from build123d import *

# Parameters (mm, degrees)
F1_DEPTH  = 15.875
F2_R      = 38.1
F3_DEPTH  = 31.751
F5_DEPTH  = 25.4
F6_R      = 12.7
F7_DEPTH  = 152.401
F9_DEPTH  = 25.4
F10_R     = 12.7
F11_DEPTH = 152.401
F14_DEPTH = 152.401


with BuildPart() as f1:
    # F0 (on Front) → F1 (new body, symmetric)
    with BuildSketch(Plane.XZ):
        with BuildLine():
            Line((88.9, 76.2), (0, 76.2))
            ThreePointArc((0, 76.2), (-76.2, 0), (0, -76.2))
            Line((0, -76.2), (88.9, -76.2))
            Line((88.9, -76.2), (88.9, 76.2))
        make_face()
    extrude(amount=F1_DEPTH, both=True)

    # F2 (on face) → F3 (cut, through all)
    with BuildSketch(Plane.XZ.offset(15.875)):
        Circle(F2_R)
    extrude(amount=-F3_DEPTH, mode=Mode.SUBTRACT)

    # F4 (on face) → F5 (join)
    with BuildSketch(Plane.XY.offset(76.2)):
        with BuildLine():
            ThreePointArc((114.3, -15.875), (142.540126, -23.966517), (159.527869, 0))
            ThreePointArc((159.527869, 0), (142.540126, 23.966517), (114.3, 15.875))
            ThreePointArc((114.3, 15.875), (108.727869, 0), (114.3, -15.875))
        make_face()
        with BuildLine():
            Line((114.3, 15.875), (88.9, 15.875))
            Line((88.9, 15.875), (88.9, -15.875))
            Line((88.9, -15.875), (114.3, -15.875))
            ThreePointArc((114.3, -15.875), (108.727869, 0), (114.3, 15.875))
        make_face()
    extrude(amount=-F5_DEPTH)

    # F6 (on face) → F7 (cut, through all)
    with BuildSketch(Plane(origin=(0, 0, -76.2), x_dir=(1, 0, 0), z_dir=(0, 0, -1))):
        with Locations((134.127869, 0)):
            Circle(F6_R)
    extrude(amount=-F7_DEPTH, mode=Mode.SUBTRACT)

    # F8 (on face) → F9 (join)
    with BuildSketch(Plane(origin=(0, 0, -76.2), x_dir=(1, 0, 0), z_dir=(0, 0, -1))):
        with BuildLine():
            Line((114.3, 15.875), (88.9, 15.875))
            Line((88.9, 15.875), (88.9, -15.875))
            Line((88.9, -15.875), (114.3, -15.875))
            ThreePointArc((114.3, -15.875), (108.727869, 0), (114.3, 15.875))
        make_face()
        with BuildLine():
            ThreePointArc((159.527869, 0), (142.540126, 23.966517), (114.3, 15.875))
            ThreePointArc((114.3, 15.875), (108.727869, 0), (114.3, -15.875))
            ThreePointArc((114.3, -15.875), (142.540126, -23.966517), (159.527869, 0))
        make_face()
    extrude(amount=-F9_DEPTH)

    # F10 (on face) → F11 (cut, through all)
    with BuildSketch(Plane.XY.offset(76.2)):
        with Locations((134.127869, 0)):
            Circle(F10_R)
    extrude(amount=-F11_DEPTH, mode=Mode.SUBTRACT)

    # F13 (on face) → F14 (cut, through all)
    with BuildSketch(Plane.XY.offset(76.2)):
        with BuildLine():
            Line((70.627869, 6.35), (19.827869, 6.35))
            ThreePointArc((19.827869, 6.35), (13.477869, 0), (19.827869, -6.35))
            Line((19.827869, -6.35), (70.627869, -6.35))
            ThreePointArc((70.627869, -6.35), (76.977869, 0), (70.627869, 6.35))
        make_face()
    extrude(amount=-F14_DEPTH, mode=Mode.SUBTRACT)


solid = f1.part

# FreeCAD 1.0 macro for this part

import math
import FreeCAD as App
import Part
import Sketcher

V = App.Vector
Q = App.Units.Quantity

doc = App.newDocument("Part")
body = doc.addObject("PartDesign::Body", "Body")

# Sketch on XZ plane
sketch1 = body.newObject("Sketcher::SketchObject", "Sketch")
sketch1.AttachmentSupport = (doc.getObject("XZ_Plane"), [""])
sketch1.MapMode = "FlatFace"
sketch1.addGeometry([
    Part.LineSegment(V(89, 76, 0), V(0, 76, 0)),
    Part.ArcOfCircle(Part.Circle(V(0, 0, 0), V(0, 0, 1), 76), math.radians(90), math.radians(270)),
    Part.LineSegment(V(0, -76, 0), V(89, -76, 0)),
    Part.LineSegment(V(89, -76, 0), V(89, 76, 0)),
], False)
sketch1.addConstraint([
    Sketcher.Constraint("Tangent", 0, 2, 1, 1),
    Sketcher.Constraint("Tangent", 1, 2, 2, 1),
    Sketcher.Constraint("Coincident", 2, 2, 3, 1),
    Sketcher.Constraint("Coincident", 3, 2, 0, 1),
    Sketcher.Constraint("Horizontal", 0),
    Sketcher.Constraint("Horizontal", 2),
    Sketcher.Constraint("Vertical", 3),
    Sketcher.Constraint("Coincident", 1, 3, -1, 1),
    Sketcher.Constraint("Radius", 1, Q("3 in")),
    Sketcher.Constraint("DistanceX", 0, 2, 0, 1, Q("3.5 in")),
])
pad1 = body.newObject("PartDesign::Pad", "Pad")
pad1.Profile = sketch1
pad1.Length = Q("1.25 in")
pad1.Midplane = True

# Sketch on XZ plane
sketch2 = body.newObject("Sketcher::SketchObject", "Sketch001")
sketch2.AttachmentSupport = (doc.getObject("XZ_Plane"), [""])
sketch2.MapMode = "FlatFace"
sketch2.AttachmentOffset = App.Placement(V(0, 0, 0.625 * 25.4), App.Rotation())
sketch2.addGeometry(Part.Circle(V(0, 0, 0), V(0, 0, 1), 38), False)
sketch2.addConstraint([
    Sketcher.Constraint("Coincident", 0, 3, -1, 1),
    Sketcher.Constraint("Diameter", 0, Q("3 in")),
])
pocket1 = body.newObject("PartDesign::Pocket", "Pocket")
pocket1.Profile = sketch2
pocket1.Type = "ThroughAll"

# Sketch on XY plane
sketch3 = body.newObject("Sketcher::SketchObject", "Sketch002")
sketch3.AttachmentSupport = (doc.getObject("XY_Plane"), [""])
sketch3.MapMode = "FlatFace"
sketch3.AttachmentOffset = App.Placement(V(0, 0, 3 * 25.4), App.Rotation())
sketch3.addGeometry([
    Part.ArcOfCircle(Part.Circle(V(134, 0, 0), V(0, 0, 1), 25), math.radians(-141), math.radians(0)),  # 0
    Part.ArcOfCircle(Part.Circle(V(134, 0, 0), V(0, 0, 1), 25), math.radians(0), math.radians(141)),  # 1
    Part.LineSegment(V(114, 16, 0), V(89, 16, 0)),  # 2
    Part.LineSegment(V(89, 16, 0), V(89, -16, 0)),  # 3
    Part.LineSegment(V(89, -16, 0), V(114, -16, 0)),  # 4
], False)
sketch3.addConstraint([
    Sketcher.Constraint("Tangent", 0, 2, 1, 1),
    Sketcher.Constraint("Coincident", 1, 2, 2, 1),
    Sketcher.Constraint("Coincident", 2, 2, 3, 1),
    Sketcher.Constraint("Coincident", 3, 2, 4, 1),
    Sketcher.Constraint("Coincident", 4, 2, 0, 1),
    Sketcher.Constraint("Horizontal", 2),
    Sketcher.Constraint("Vertical", 3),
    Sketcher.Constraint("Horizontal", 4),
    Sketcher.Constraint("Equal", 0, 1),
    Sketcher.Constraint("Symmetric", 1, 2, 4, 2, -1),
    Sketcher.Constraint("PointOnObject", 0, 2, -1),
    Sketcher.Constraint("Radius", 0, Q("1 in")),
    Sketcher.Constraint("DistanceX", 2, 2, 2, 1, Q("1 in")),
    Sketcher.Constraint("DistanceY", 3, 2, 3, 1, Q("1.25 in")),
    Sketcher.Constraint("DistanceX", -1, 1, 1, 2, Q("4.5 in")),
])
pad2 = body.newObject("PartDesign::Pad", "Pad001")
pad2.Profile = sketch3
pad2.Length = Q("1 in")
pad2.Reversed = True

# Sketch on XY plane
sketch4 = body.newObject("Sketcher::SketchObject", "Sketch003")
sketch4.AttachmentSupport = (doc.getObject("XY_Plane"), [""])
sketch4.MapMode = "FlatFace"
sketch4.AttachmentOffset = App.Placement(V(0, 0, -3 * 25.4), App.Rotation())
sketch4.addGeometry(Part.Circle(V(134, 0, 0), V(0, 0, 1), 13), False)
sketch4.addConstraint([
    Sketcher.Constraint("PointOnObject", 0, 3, -1),
    Sketcher.Constraint("Diameter", 0, Q("1 in")),
    Sketcher.Constraint("DistanceX", -1, 1, 0, 3, Q("134.127869 mm")),
])
pocket2 = body.newObject("PartDesign::Pocket", "Pocket001")
pocket2.Profile = sketch4
pocket2.Type = "ThroughAll"
pocket2.Reversed = True

# Sketch on XY plane
sketch5 = body.newObject("Sketcher::SketchObject", "Sketch004")
sketch5.AttachmentSupport = (doc.getObject("XY_Plane"), [""])
sketch5.MapMode = "FlatFace"
sketch5.AttachmentOffset = App.Placement(V(0, 0, -3 * 25.4), App.Rotation())
sketch5.addGeometry([
    Part.LineSegment(V(114, -16, 0), V(89, -16, 0)),  # 0
    Part.LineSegment(V(89, -16, 0), V(89, 16, 0)),  # 1
    Part.LineSegment(V(89, 16, 0), V(114, 16, 0)),  # 2
    Part.ArcOfCircle(Part.Circle(V(134, 0, 0), V(0, 0, 1), 25), math.radians(0), math.radians(141)),  # 3
    Part.ArcOfCircle(Part.Circle(V(134, 0, 0), V(0, 0, 1), 25), math.radians(-141), math.radians(0)),  # 4
], False)
sketch5.addConstraint([
    Sketcher.Constraint("Coincident", 0, 2, 1, 1),
    Sketcher.Constraint("Coincident", 1, 2, 2, 1),
    Sketcher.Constraint("Coincident", 2, 2, 3, 2),
    Sketcher.Constraint("Tangent", 3, 1, 4, 2),
    Sketcher.Constraint("Coincident", 4, 1, 0, 1),
    Sketcher.Constraint("Horizontal", 0),
    Sketcher.Constraint("Vertical", 1),
    Sketcher.Constraint("Horizontal", 2),
    Sketcher.Constraint("Equal", 3, 4),
    Sketcher.Constraint("Symmetric", 2, 2, 4, 1, -1),
    Sketcher.Constraint("PointOnObject", 3, 1, -1),
    Sketcher.Constraint("Radius", 3, Q("1 in")),
    Sketcher.Constraint("DistanceX", 0, 2, 0, 1, Q("1 in")),
    Sketcher.Constraint("DistanceY", 1, 1, 1, 2, Q("1.25 in")),
    Sketcher.Constraint("DistanceX", -1, 1, 0, 2, Q("3.5 in")),
])
pad3 = body.newObject("PartDesign::Pad", "Pad002")
pad3.Profile = sketch5
pad3.Length = Q("1 in")

# Sketch on XY plane
sketch6 = body.newObject("Sketcher::SketchObject", "Sketch005")
sketch6.AttachmentSupport = (doc.getObject("XY_Plane"), [""])
sketch6.MapMode = "FlatFace"
sketch6.AttachmentOffset = App.Placement(V(0, 0, 3 * 25.4), App.Rotation())
sketch6.addGeometry(Part.Circle(V(134, 0, 0), V(0, 0, 1), 13), False)
sketch6.addConstraint([
    Sketcher.Constraint("PointOnObject", 0, 3, -1),
    Sketcher.Constraint("Diameter", 0, Q("1 in")),
    Sketcher.Constraint("DistanceX", -1, 1, 0, 3, Q("134.127869 mm")),
])
pocket3 = body.newObject("PartDesign::Pocket", "Pocket002")
pocket3.Profile = sketch6
pocket3.Type = "ThroughAll"

# Sketch on XY plane
sketch7 = body.newObject("Sketcher::SketchObject", "Sketch006")
sketch7.AttachmentSupport = (doc.getObject("XY_Plane"), [""])
sketch7.MapMode = "FlatFace"
sketch7.AttachmentOffset = App.Placement(V(0, 0, 3 * 25.4), App.Rotation())
sketch7.addGeometry([
    Part.LineSegment(V(71, 6, 0), V(20, 6, 0)),
    Part.ArcOfCircle(Part.Circle(V(20, 0, 0), V(0, 0, 1), 6), math.radians(90), math.radians(270)),
    Part.LineSegment(V(20, -6, 0), V(71, -6, 0)),
    Part.ArcOfCircle(Part.Circle(V(71, 0, 0), V(0, 0, 1), 6), math.radians(-90), math.radians(90)),
], False)
sketch7.addConstraint([
    Sketcher.Constraint("Tangent", 0, 2, 1, 1),
    Sketcher.Constraint("Tangent", 1, 2, 2, 1),
    Sketcher.Constraint("Tangent", 2, 2, 3, 1),
    Sketcher.Constraint("Tangent", 3, 2, 0, 1),
    Sketcher.Constraint("Horizontal", 0),
    Sketcher.Constraint("Horizontal", 2),
    Sketcher.Constraint("PointOnObject", 1, 3, -1),
    Sketcher.Constraint("DistanceX", 0, 2, 0, 1, Q("2 in")),
    Sketcher.Constraint("Radius", 1, Q("0.25 in")),
    Sketcher.Constraint("DistanceX", -1, 1, 1, 3, Q("19.827869 mm")),
])
pocket4 = body.newObject("PartDesign::Pocket", "Pocket003")
pocket4.Profile = sketch7
pocket4.Type = "ThroughAll"

doc.recompute()
